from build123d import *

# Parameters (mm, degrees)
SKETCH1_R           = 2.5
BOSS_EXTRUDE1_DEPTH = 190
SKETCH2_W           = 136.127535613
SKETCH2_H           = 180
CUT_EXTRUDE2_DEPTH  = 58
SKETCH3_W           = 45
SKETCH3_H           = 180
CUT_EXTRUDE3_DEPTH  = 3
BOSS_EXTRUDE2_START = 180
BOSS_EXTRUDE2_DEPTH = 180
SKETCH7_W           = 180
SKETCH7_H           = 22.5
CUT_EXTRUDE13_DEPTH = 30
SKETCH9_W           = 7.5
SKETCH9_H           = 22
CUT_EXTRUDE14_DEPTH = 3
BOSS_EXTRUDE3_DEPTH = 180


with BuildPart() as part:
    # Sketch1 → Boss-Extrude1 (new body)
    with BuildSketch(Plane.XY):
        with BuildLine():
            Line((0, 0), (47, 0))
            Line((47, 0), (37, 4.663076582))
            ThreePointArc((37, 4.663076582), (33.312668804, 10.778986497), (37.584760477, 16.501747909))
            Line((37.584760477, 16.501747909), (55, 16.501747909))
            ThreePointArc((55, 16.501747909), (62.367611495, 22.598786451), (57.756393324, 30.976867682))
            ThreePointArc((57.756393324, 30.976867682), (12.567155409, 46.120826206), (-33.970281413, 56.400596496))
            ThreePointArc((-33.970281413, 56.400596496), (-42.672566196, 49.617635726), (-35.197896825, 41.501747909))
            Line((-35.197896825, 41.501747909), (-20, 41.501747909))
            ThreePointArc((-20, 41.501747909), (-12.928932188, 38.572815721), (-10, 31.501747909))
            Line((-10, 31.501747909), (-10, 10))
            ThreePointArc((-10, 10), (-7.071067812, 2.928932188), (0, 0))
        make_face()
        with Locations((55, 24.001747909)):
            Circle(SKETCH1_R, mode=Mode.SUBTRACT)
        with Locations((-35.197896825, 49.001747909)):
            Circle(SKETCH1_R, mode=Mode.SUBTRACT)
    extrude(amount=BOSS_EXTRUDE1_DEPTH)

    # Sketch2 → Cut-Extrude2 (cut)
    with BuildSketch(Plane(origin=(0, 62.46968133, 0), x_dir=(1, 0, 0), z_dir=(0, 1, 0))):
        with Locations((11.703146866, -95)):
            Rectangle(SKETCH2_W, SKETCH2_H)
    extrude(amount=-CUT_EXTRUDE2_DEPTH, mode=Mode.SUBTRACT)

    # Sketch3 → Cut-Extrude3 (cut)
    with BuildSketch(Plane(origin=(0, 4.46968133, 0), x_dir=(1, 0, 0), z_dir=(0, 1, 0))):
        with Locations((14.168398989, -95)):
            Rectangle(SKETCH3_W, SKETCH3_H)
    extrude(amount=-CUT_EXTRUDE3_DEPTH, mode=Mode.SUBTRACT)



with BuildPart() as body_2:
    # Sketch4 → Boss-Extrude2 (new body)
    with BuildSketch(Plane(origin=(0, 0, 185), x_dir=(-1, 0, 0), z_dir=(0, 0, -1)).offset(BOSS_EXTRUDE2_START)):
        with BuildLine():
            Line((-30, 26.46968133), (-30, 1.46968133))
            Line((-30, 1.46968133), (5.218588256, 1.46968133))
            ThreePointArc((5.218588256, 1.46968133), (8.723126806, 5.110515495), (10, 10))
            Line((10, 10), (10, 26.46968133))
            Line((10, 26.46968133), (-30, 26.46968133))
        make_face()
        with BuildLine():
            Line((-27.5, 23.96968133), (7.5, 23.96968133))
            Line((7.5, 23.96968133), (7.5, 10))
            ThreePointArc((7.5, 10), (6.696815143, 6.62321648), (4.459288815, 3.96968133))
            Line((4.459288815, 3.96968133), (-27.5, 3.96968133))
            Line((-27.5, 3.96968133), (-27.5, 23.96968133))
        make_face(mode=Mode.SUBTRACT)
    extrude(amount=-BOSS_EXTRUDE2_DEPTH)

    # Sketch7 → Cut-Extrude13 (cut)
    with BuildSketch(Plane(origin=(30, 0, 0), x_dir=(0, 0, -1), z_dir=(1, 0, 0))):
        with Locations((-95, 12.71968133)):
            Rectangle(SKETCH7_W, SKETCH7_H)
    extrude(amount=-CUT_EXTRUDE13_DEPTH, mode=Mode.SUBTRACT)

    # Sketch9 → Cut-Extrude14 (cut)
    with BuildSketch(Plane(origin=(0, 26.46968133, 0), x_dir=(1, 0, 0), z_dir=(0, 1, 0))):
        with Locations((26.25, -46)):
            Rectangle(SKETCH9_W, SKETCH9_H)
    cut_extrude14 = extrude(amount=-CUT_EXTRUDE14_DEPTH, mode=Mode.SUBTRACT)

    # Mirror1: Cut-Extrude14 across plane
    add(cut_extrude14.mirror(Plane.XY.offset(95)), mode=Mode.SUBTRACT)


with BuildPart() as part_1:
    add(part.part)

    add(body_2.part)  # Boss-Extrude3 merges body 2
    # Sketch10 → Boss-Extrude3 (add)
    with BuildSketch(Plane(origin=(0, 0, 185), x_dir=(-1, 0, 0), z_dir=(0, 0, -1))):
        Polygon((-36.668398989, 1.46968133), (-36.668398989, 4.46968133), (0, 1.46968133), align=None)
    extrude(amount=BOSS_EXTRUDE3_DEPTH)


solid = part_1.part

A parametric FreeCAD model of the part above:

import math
import FreeCAD as App
import Part
import Sketcher

V = App.Vector
Q = App.Units.Quantity


def add_polygon(sketch, points):
    """Adds a closed chain of lines whose ends are joined by coincident constraints."""
    first, n = sketch.GeometryCount, len(points)
    for a, b in zip(points, points[1:] + points[:1]):
        sketch.addGeometry(Part.LineSegment(App.Vector(*a, 0), App.Vector(*b, 0)), False)
    for i in range(n):
        sketch.addConstraint(Sketcher.Constraint("Coincident", first + i, 2, first + (i + 1) % n, 1))

doc = App.newDocument("Part")
body = doc.addObject("PartDesign::Body", "Body")

sketch1 = doc.addObject("Sketcher::SketchObject", "Sketch")
body.addObject(sketch1)
sketch1.AttachmentSupport = (doc.XY_Plane, [""])
sketch1.MapMode = "FlatFace"
sketch1.addGeometry(Part.LineSegment(V(0, 0, 0), V(47, 0, 0)), False)
sketch1.addGeometry(Part.LineSegment(V(47, 0, 0), V(37, 4.7, 0)), False)
sketch1.addGeometry(Part.ArcOfCircle(Part.Circle(V(39.7, 10.5, 0), V(0, 0, 1), 6.4), math.radians(109), math.radians(245)), False)
sketch1.addGeometry(Part.LineSegment(V(37.6, 16.5, 0), V(55, 16.5, 0)), False)
sketch1.addGeometry(Part.ArcOfCircle(Part.Circle(V(55, 24, 0), V(0, 0, 1), 7.5), math.radians(-90), math.radians(68)), False)
sketch1.addGeometry(Part.ArcOfCircle(Part.Circle(V(-107.6, -387.5, 0), V(0, 0, 1), 450), math.radians(68.44), math.radians(80.58)), False)
sketch1.addGeometry(Part.ArcOfCircle(Part.Circle(V(-35.2, 49, 0), V(0, 0, 1), 7.5), math.radians(81), math.radians(270)), False)
sketch1.addGeometry(Part.LineSegment(V(-35.2, 41.5, 0), V(-20, 41.5, 0)), False)
sketch1.addGeometry(Part.ArcOfCircle(Part.Circle(V(-20, 31.5, 0), V(0, 0, 1), 10), math.radians(0), math.radians(90)), False)
sketch1.addGeometry(Part.LineSegment(V(-10, 31.5, 0), V(-10, 10, 0)), False)
sketch1.addGeometry(Part.ArcOfCircle(Part.Circle(V(0, 10, 0), V(0, 0, 1), 10), math.radians(180), math.radians(270)), False)
sketch1.addGeometry(Part.Circle(V(55, 24, 0), V(0, 0, 1), 2.5), False)
sketch1.addGeometry(Part.Circle(V(-35.2, 49, 0), V(0, 0, 1), 2.5), False)
sketch1.addConstraint(Sketcher.Constraint("Coincident", 0, 2, 1, 1))
sketch1.addConstraint(Sketcher.Constraint("Tangent", 1, 2, 2, 2))
sketch1.addConstraint(Sketcher.Constraint("Coincident", 2, 1, 3, 1))
sketch1.addConstraint(Sketcher.Constraint("Tangent", 3, 2, 4, 1))
sketch1.addConstraint(Sketcher.Constraint("Tangent", 4, 2, 5, 1))
sketch1.addConstraint(Sketcher.Constraint("Tangent", 5, 2, 6, 1))
sketch1.addConstraint(Sketcher.Constraint("Tangent", 6, 2, 7, 1))
sketch1.addConstraint(Sketcher.Constraint("Tangent", 7, 2, 8, 2))
sketch1.addConstraint(Sketcher.Constraint("Tangent", 8, 1, 9, 1))
sketch1.addConstraint(Sketcher.Constraint("Tangent", 9, 2, 10, 1))
sketch1.addConstraint(Sketcher.Constraint("Tangent", 10, 2, 0, 1))
sketch1.addConstraint(Sketcher.Constraint("Horizontal", 0))
sketch1.addConstraint(Sketcher.Constraint("Horizontal", 3))
sketch1.addConstraint(Sketcher.Constraint("Horizontal", 7))
sketch1.addConstraint(Sketcher.Constraint("Vertical", 9))
sketch1.addConstraint(Sketcher.Constraint("Coincident", 10, 2, -1, 1))
sketch1.addConstraint(Sketcher.Constraint("Coincident", 11, 3, 4, 3))
sketch1.addConstraint(Sketcher.Constraint("Coincident", 12, 3, 6, 3))
sketch1.addConstraint(Sketcher.Constraint("Equal", 4, 6))
sketch1.addConstraint(Sketcher.Constraint("Equal", 8, 10))
sketch1.addConstraint(Sketcher.Constraint("Equal", 11, 12))
sketch1.addConstraint(Sketcher.Constraint("Diameter", 11, Q("5 mm")))
sketch1.addConstraint(Sketcher.Constraint("Radius", 5, Q("450 mm")))
sketch1.addConstraint(Sketcher.Constraint("Radius", 8, Q("10 mm")))
sketch1.addConstraint(Sketcher.Constraint("Radius", 4, Q("7.5 mm")))
sketch1.addConstraint(Sketcher.Constraint("DistanceX", 0, 1, 0, 2, Q("47 mm")))
sketch1.addConstraint(Sketcher.Constraint("Angle", 1, Q("155 deg")))
sketch1.addConstraint(Sketcher.Constraint("DistanceX", -1, 1, 4, 3, Q("55 mm")))
sketch1.addConstraint(Sketcher.Constraint("DistanceX", -1, 1, 1, 2, Q("37 mm")))
sketch1.addConstraint(Sketcher.Constraint("DistanceY", 4, 3, 6, 3, Q("25 mm")))
sketch1.addConstraint(Sketcher.Constraint("Radius", 2, Q("6.399794 mm")))
sketch1.addConstraint(Sketcher.Constraint("DistanceX", 3, 1, 3, 2, Q("17.41524 mm")))
sketch1.addConstraint(Sketcher.Constraint("DistanceX", 7, 1, 7, 2, Q("15.197897 mm")))
pad1 = doc.addObject("PartDesign::Pad", "Pad")
body.addObject(pad1)
pad1.Profile = sketch1
pad1.Length = 190

sketch2 = doc.addObject("Sketcher::SketchObject", "Sketch001")
body.addObject(sketch2)
sketch2.AttachmentSupport = (doc.XZ_Plane, [""])
sketch2.MapMode = "FlatFace"
sketch2.AttachmentOffset = App.Placement(V(0, 0, -62.469681), App.Rotation())
add_polygon(sketch2, [(-56, 5), (-56, 185), (80, 185), (80, 5)])
sketch2.addConstraint(Sketcher.Constraint("Vertical", 0))
sketch2.addConstraint(Sketcher.Constraint("Horizontal", 1))
sketch2.addConstraint(Sketcher.Constraint("Vertical", 2))
sketch2.addConstraint(Sketcher.Constraint("Horizontal", 3))
sketch2.addConstraint(Sketcher.Constraint("DistanceY", 0, 1, 0, 2, Q("180 mm")))
sketch2.addConstraint(Sketcher.Constraint("DistanceY", -1, 1, 0, 2, Q("185 mm")))
sketch2.addConstraint(Sketcher.Constraint("DistanceX", 1, 1, 1, 2, Q("136.127536 mm")))
sketch2.addConstraint(Sketcher.Constraint("DistanceX", 0, 2, -1, 1, Q("56.360621 mm")))
pocket1 = doc.addObject("PartDesign::Pocket", "Pocket")
body.addObject(pocket1)
pocket1.Profile = sketch2
pocket1.Length = 58
pocket1.Reversed = True

sketch3 = doc.addObject("Sketcher::SketchObject", "Sketch002")
body.addObject(sketch3)
sketch3.AttachmentSupport = (doc.XZ_Plane, [""])
sketch3.MapMode = "FlatFace"
sketch3.AttachmentOffset = App.Placement(V(0, 0, -4.469681), App.Rotation())
add_polygon(sketch3, [(-8, 5), (-8, 185), (37, 185), (37, 5)])
sketch3.addConstraint(Sketcher.Constraint("Vertical", 0))
sketch3.addConstraint(Sketcher.Constraint("Horizontal", 1))
sketch3.addConstraint(Sketcher.Constraint("Vertical", 2))
sketch3.addConstraint(Sketcher.Constraint("Horizontal", 3))
sketch3.addConstraint(Sketcher.Constraint("DistanceX", 1, 1, 1, 2, Q("45 mm")))
sketch3.addConstraint(Sketcher.Constraint("DistanceY", 0, 1, 0, 2, Q("180 mm")))
sketch3.addConstraint(Sketcher.Constraint("DistanceY", -1, 1, 0, 2, Q("185 mm")))
sketch3.addConstraint(Sketcher.Constraint("DistanceX", 0, 2, -1, 1, Q("8.331601 mm")))
pocket2 = doc.addObject("PartDesign::Pocket", "Pocket001")
body.addObject(pocket2)
pocket2.Profile = sketch3
pocket2.Length = 3
pocket2.Reversed = True
body2 = doc.addObject("PartDesign::Body", "Body001")

sketch4 = doc.addObject("Sketcher::SketchObject", "Sketch003")
body2.addObject(sketch4)
sketch4.AttachmentSupport = (doc.getObject("XY_Plane001"), [""])
sketch4.MapMode = "FlatFace"
sketch4.AttachmentOffset = App.Placement(V(0, 0, 5), App.Rotation())
sketch4.addGeometry(Part.LineSegment(V(30, 26, 0), V(30, 1, 0)), False)
sketch4.addGeometry(Part.LineSegment(V(30, 1, 0), V(-5, 1, 0)), False)
sketch4.addGeometry(Part.ArcOfCircle(Part.Circle(V(0, 10, 0), V(0, 0, 1), 10), math.radians(180), math.radians(239)), False)
sketch4.addGeometry(Part.LineSegment(V(-10, 10, 0), V(-10, 26, 0)), False)
sketch4.addGeometry(Part.LineSegment(V(-10, 26, 0), V(30, 26, 0)), False)
sketch4.addGeometry(Part.LineSegment(V(28, 4, 0), V(28, 24, 0)), False)
sketch4.addGeometry(Part.LineSegment(V(28, 24, 0), V(-8, 24, 0)), False)
sketch4.addGeometry(Part.LineSegment(V(-8, 24, 0), V(-8, 10, 0)), False)
sketch4.addGeometry(Part.ArcOfCircle(Part.Circle(V(0, 10, 0), V(0, 0, 1), 7), math.radians(180), math.radians(234)), False)
sketch4.addGeometry(Part.LineSegment(V(-4, 4, 0), V(28, 4, 0)), False)
sketch4.addConstraint(Sketcher.Constraint("Coincident", 0, 2, 1, 1))
sketch4.addConstraint(Sketcher.Constraint("Coincident", 1, 2, 2, 2))
sketch4.addConstraint(Sketcher.Constraint("Tangent", 2, 1, 3, 1))
sketch4.addConstraint(Sketcher.Constraint("Coincident", 3, 2, 4, 1))
sketch4.addConstraint(Sketcher.Constraint("Coincident", 4, 2, 0, 1))
sketch4.addConstraint(Sketcher.Constraint("Coincident", 5, 2, 6, 1))
sketch4.addConstraint(Sketcher.Constraint("Coincident", 6, 2, 7, 1))
sketch4.addConstraint(Sketcher.Constraint("Tangent", 7, 2, 8, 1))
sketch4.addConstraint(Sketcher.Constraint("Coincident", 8, 2, 9, 1))
sketch4.addConstraint(Sketcher.Constraint("Coincident", 9, 2, 5, 1))
sketch4.addConstraint(Sketcher.Constraint("Vertical", 0))
sketch4.addConstraint(Sketcher.Constraint("Horizontal", 1))
sketch4.addConstraint(Sketcher.Constraint("Vertical", 3))
sketch4.addConstraint(Sketcher.Constraint("Horizontal", 4))
sketch4.addConstraint(Sketcher.Constraint("Vertical", 5))
sketch4.addConstraint(Sketcher.Constraint("Horizontal", 6))
sketch4.addConstraint(Sketcher.Constraint("Vertical", 7))
sketch4.addConstraint(Sketcher.Constraint("Horizontal", 9))
sketch4.addConstraint(Sketcher.Constraint("Coincident", 8, 3, 2, 3))
sketch4.addConstraint(Sketcher.Constraint("PointOnObject", 2, 3, -2))
sketch4.addConstraint(Sketcher.Constraint("Radius", 2, Q("10 mm")))
sketch4.addConstraint(Sketcher.Constraint("Radius", 8, Q("7.5 mm")))
sketch4.addConstraint(Sketcher.Constraint("DistanceX", 4, 1, 4, 2, Q("40 mm")))
sketch4.addConstraint(Sketcher.Constraint("DistanceX", 6, 2, 6, 1, Q("35 mm")))
sketch4.addConstraint(Sketcher.Constraint("DistanceY", 0, 2, 0, 1, Q("25 mm")))
sketch4.addConstraint(Sketcher.Constraint("DistanceY", 5, 1, 5, 2, Q("20 mm")))
sketch4.addConstraint(Sketcher.Constraint("DistanceY", -1, 1, 2, 3, Q("10 mm")))
sketch4.addConstraint(Sketcher.Constraint("DistanceY", 5, 2, 4, 2, Q("2.5 mm")))
sketch4.addConstraint(Sketcher.Constraint("DistanceX", 1, 2, 1, 1, Q("35.218588 mm")))
pad2 = doc.addObject("PartDesign::Pad", "Pad001")
body2.addObject(pad2)
pad2.Profile = sketch4
pad2.Length = 180

sketch5 = doc.addObject("Sketcher::SketchObject", "Sketch004")
body2.addObject(sketch5)
sketch5.AttachmentSupport = (doc.getObject("YZ_Plane001"), [""])
sketch5.MapMode = "FlatFace"
sketch5.AttachmentOffset = App.Placement(V(0, 0, 30), App.Rotation())
add_polygon(sketch5, [(24, 185), (1, 185), (1, 5), (24, 5)])
sketch5.addConstraint(Sketcher.Constraint("Horizontal", 0))
sketch5.addConstraint(Sketcher.Constraint("Vertical", 1))
sketch5.addConstraint(Sketcher.Constraint("Horizontal", 2))
sketch5.addConstraint(Sketcher.Constraint("Vertical", 3))
sketch5.addConstraint(Sketcher.Constraint("DistanceY", 1, 2, 1, 1, Q("180 mm")))
sketch5.addConstraint(Sketcher.Constraint("DistanceX", 0, 2, 0, 1, Q("22.5 mm")))
sketch5.addConstraint(Sketcher.Constraint("DistanceY", -1, 1, 0, 2, Q("185 mm")))
sketch5.addConstraint(Sketcher.Constraint("DistanceX", -1, 1, 0, 2, Q("1.469681 mm")))
pocket3 = doc.addObject("PartDesign::Pocket", "Pocket002")
body2.addObject(pocket3)
pocket3.Profile = sketch5
pocket3.Length = 30

sketch6 = doc.addObject("Sketcher::SketchObject", "Sketch005")
body2.addObject(sketch6)
sketch6.AttachmentSupport = (doc.getObject("XZ_Plane001"), [""])
sketch6.MapMode = "FlatFace"
sketch6.AttachmentOffset = App.Placement(V(0, 0, -26.469681), App.Rotation())
add_polygon(sketch6, [(22, 35), (22, 57), (30, 57), (30, 35)])
sketch6.addConstraint(Sketcher.Constraint("Vertical", 0))
sketch6.addConstraint(Sketcher.Constraint("Horizontal", 1))
sketch6.addConstraint(Sketcher.Constraint("Vertical", 2))
sketch6.addConstraint(Sketcher.Constraint("Horizontal", 3))
sketch6.addConstraint(Sketcher.Constraint("DistanceY", 0, 1, 0, 2, Q("22 mm")))
sketch6.addConstraint(Sketcher.Constraint("DistanceX", 1, 1, 1, 2, Q("7.5 mm")))
sketch6.addConstraint(Sketcher.Constraint("DistanceY", -1, 1, 0, 2, Q("57 mm")))
sketch6.addConstraint(Sketcher.Constraint("DistanceX", -1, 1, 1, 2, Q("30 mm")))
pocket4 = doc.addObject("PartDesign::Pocket", "Pocket003")
body2.addObject(pocket4)
pocket4.Profile = sketch6
pocket4.Length = 3
pocket4.Reversed = True
doc.recompute()

datumplane = doc.addObject("PartDesign::Plane", "DatumPlane")
body2.addObject(datumplane)
datumplane.AttachmentSupport = (doc.getObject("XY_Plane001"), [""])
datumplane.MapMode = "FlatFace"
datumplane.AttachmentOffset = App.Placement(V(0, 0, 95), App.Rotation())
mirrored = doc.addObject("PartDesign::Mirrored", "Mirrored")
body2.addObject(mirrored)
mirrored.Originals = [pocket4]
mirrored.MirrorPlane = (datumplane, [""])
body2.Tip = mirrored
doc.recompute()

boolean = doc.addObject("PartDesign::Boolean", "Boolean")
body.addObject(boolean)
boolean.Type = "Fuse"
boolean.addObjects([body2])

sketch7 = doc.addObject("Sketcher::SketchObject", "Sketch006")
body.addObject(sketch7)
sketch7.AttachmentSupport = (doc.XY_Plane, [""])
sketch7.MapMode = "FlatFace"
sketch7.AttachmentOffset = App.Placement(V(0, 0, 185), App.Rotation())
add_polygon(sketch7, [(36.7, 4.5), (36.7, 1.5), (0, 1.5)])
sketch7.addConstraint(Sketcher.Constraint("Vertical", 0))
sketch7.addConstraint(Sketcher.Constraint("Horizontal", 1))
sketch7.addConstraint(Sketcher.Constraint("PointOnObject", 1, 2, -2))
sketch7.addConstraint(Sketcher.Constraint("DistanceY", 0, 2, 0, 1, Q("3 mm")))
sketch7.addConstraint(Sketcher.Constraint("DistanceX", 1, 2, 1, 1, Q("36.668399 mm")))
sketch7.addConstraint(Sketcher.Constraint("DistanceY", -1, 1, 0, 2, Q("1.469681 mm")))
pad3 = doc.addObject("PartDesign::Pad", "Pad002")
body.addObject(pad3)
pad3.Profile = sketch7
pad3.Length = 180
pad3.Reversed = True

doc.recompute()
